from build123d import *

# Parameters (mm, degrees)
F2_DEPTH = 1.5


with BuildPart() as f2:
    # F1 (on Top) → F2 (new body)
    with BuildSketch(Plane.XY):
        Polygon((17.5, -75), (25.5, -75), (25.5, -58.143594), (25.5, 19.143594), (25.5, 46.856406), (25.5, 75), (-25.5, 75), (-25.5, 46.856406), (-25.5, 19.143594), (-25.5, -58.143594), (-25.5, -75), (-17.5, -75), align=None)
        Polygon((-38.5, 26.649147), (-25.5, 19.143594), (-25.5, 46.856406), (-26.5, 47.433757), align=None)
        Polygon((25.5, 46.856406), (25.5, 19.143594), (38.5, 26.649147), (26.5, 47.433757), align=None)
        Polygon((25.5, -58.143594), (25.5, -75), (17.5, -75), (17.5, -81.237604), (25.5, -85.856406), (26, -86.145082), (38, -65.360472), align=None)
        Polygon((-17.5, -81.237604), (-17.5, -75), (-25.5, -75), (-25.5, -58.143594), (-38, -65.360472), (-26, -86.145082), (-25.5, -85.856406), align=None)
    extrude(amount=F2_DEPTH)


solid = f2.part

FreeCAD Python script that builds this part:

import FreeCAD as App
import Part
import Sketcher
Q = App.Units.Quantity

doc = App.newDocument("Part")
body = doc.addObject("PartDesign::Body", "Body")

# Sketch on XY plane
sketch1 = doc.addObject("Sketcher::SketchObject", "Sketch")
body.addObject(sketch1)
sketch1.AttachmentSupport = (doc.XY_Plane, [""])
sketch1.MapMode = "FlatFace"
sketch1.addGeometry([
    Part.LineSegment(App.Vector(25.5, -58.143594, 0), App.Vector(25.5, 19.143594, 0)),  # 0
    Part.LineSegment(App.Vector(25.5, 19.143594, 0), App.Vector(38.5, 26.649147, 0)),  # 1
    Part.LineSegment(App.Vector(38.5, 26.649147, 0), App.Vector(26.5, 47.433757, 0)),  # 2
    Part.LineSegment(App.Vector(26.5, 47.433757, 0), App.Vector(25.5, 46.856406, 0)),  # 3
    Part.LineSegment(App.Vector(25.5, 46.856406, 0), App.Vector(25.5, 75, 0)),  # 4
    Part.LineSegment(App.Vector(25.5, 75, 0), App.Vector(-25.5, 75, 0)),  # 5
    Part.LineSegment(App.Vector(-25.5, 75, 0), App.Vector(-25.5, 46.856406, 0)),  # 6
    Part.LineSegment(App.Vector(-25.5, 46.856406, 0), App.Vector(-26.5, 47.433757, 0)),  # 7
    Part.LineSegment(App.Vector(-26.5, 47.433757, 0), App.Vector(-38.5, 26.649147, 0)),  # 8
    Part.LineSegment(App.Vector(-38.5, 26.649147, 0), App.Vector(-25.5, 19.143594, 0)),  # 9
    Part.LineSegment(App.Vector(-25.5, 19.143594, 0), App.Vector(-25.5, -58.143594, 0)),  # 10
    Part.LineSegment(App.Vector(-25.5, -58.143594, 0), App.Vector(-38, -65.360472, 0)),  # 11
    Part.LineSegment(App.Vector(-38, -65.360472, 0), App.Vector(-26, -86.145082, 0)),  # 12
    Part.LineSegment(App.Vector(-26, -86.145082, 0), App.Vector(-25.5, -85.856406, 0)),  # 13
    Part.LineSegment(App.Vector(-25.5, -85.856406, 0), App.Vector(-17.5, -81.237604, 0)),  # 14
    Part.LineSegment(App.Vector(-17.5, -81.237604, 0), App.Vector(-17.5, -75, 0)),  # 15
    Part.LineSegment(App.Vector(-17.5, -75, 0), App.Vector(17.5, -75, 0)),  # 16
    Part.LineSegment(App.Vector(17.5, -75, 0), App.Vector(17.5, -81.237604, 0)),  # 17
    Part.LineSegment(App.Vector(17.5, -81.237604, 0), App.Vector(25.5, -85.856406, 0)),  # 18
    Part.LineSegment(App.Vector(25.5, -85.856406, 0), App.Vector(26, -86.145082, 0)),  # 19
    Part.LineSegment(App.Vector(26, -86.145082, 0), App.Vector(38, -65.360472, 0)),  # 20
    Part.LineSegment(App.Vector(38, -65.360472, 0), App.Vector(25.5, -58.143594, 0)),  # 21
], False)
sketch1.addConstraint([
    Sketcher.Constraint("Coincident", 0, 2, 1, 1),
    Sketcher.Constraint("Coincident", 1, 2, 2, 1),
    Sketcher.Constraint("Coincident", 2, 2, 3, 1),
    Sketcher.Constraint("Coincident", 3, 2, 4, 1),
    Sketcher.Constraint("Coincident", 4, 2, 5, 1),
    Sketcher.Constraint("Coincident", 5, 2, 6, 1),
    Sketcher.Constraint("Coincident", 6, 2, 7, 1),
    Sketcher.Constraint("Coincident", 7, 2, 8, 1),
    Sketcher.Constraint("Coincident", 8, 2, 9, 1),
    Sketcher.Constraint("Coincident", 9, 2, 10, 1),
    Sketcher.Constraint("Coincident", 10, 2, 11, 1),
    Sketcher.Constraint("Coincident", 11, 2, 12, 1),
    Sketcher.Constraint("Coincident", 12, 2, 13, 1),
    Sketcher.Constraint("Coincident", 13, 2, 14, 1),
    Sketcher.Constraint("Coincident", 14, 2, 15, 1),
    Sketcher.Constraint("Coincident", 15, 2, 16, 1),
    Sketcher.Constraint("Coincident", 16, 2, 17, 1),
    Sketcher.Constraint("Coincident", 17, 2, 18, 1),
    Sketcher.Constraint("Coincident", 18, 2, 19, 1),
    Sketcher.Constraint("Coincident", 19, 2, 20, 1),
    Sketcher.Constraint("Coincident", 20, 2, 21, 1),
    Sketcher.Constraint("Coincident", 21, 2, 0, 1),
    Sketcher.Constraint("Vertical", 0),
    Sketcher.Constraint("Vertical", 4),
    Sketcher.Constraint("Horizontal", 5),
    Sketcher.Constraint("Vertical", 6),
    Sketcher.Constraint("Vertical", 10),
    Sketcher.Constraint("Vertical", 15),
    Sketcher.Constraint("Horizontal", 16),
    Sketcher.Constraint("Vertical", 17),
    Sketcher.Constraint("Symmetric", 3, 2, 6, 2, -2),
    Sketcher.Constraint("Symmetric", 2, 2, 7, 2, -2),
    Sketcher.Constraint("Symmetric", 1, 2, 8, 2, -2),
    Sketcher.Constraint("Symmetric", 0, 2, 9, 2, -2),
    Sketcher.Constraint("Symmetric", 14, 2, 17, 2, -2),
    Sketcher.Constraint("Symmetric", 13, 2, 18, 2, -2),
    Sketcher.Constraint("Symmetric", 12, 2, 19, 2, -2),
    Sketcher.Constraint("Symmetric", 11, 2, 20, 2, -2),
    Sketcher.Constraint("Perpendicular", 1, 2),
    Sketcher.Constraint("Perpendicular", 2, 3),
    Sketcher.Constraint("Parallel", 3, 11),
    Sketcher.Constraint("Perpendicular", 11, 12),
    Sketcher.Constraint("Perpendicular", 12, 13),
    Sketcher.Constraint("Parallel", 13, 14),
    Sketcher.Constraint("Perpendicular", 20, 21),
    Sketcher.Constraint("Vertical", 0, 2, 3, 2),
    Sketcher.Constraint("Vertical", 10, 2, 13, 2),
    Sketcher.Constraint("Equal", 8, 12),
    Sketcher.Constraint("DistanceX", 5, 2, 5, 1, 51.0),
    Sketcher.Constraint("DistanceX", 16, 1, 16, 2, 35.0),
    Sketcher.Constraint("Angle", 1, Q("29.999998 deg")),
    Sketcher.Constraint("Distance", 2, 24.0),
    Sketcher.Constraint("DistanceY", -1, 1, 4, 2, 75.0),
    Sketcher.Constraint("DistanceX", 11, 2, -1, 1, 38.0),
    Sketcher.Constraint("DistanceY", 15, 2, -1, 1, 75.0),
    Sketcher.Constraint("DistanceX", 0, 2, 1, 2, 13.0),
    Sketcher.Constraint("DistanceY", 10, 2, 6, 2, 105.0),
    Sketcher.Constraint("DistanceY", 4, 1, 4, 2, 28.143594),
])
pad1 = doc.addObject("PartDesign::Pad", "Pad")
body.addObject(pad1)
pad1.Profile = sketch1
pad1.Length = 1.5

doc.recompute()
